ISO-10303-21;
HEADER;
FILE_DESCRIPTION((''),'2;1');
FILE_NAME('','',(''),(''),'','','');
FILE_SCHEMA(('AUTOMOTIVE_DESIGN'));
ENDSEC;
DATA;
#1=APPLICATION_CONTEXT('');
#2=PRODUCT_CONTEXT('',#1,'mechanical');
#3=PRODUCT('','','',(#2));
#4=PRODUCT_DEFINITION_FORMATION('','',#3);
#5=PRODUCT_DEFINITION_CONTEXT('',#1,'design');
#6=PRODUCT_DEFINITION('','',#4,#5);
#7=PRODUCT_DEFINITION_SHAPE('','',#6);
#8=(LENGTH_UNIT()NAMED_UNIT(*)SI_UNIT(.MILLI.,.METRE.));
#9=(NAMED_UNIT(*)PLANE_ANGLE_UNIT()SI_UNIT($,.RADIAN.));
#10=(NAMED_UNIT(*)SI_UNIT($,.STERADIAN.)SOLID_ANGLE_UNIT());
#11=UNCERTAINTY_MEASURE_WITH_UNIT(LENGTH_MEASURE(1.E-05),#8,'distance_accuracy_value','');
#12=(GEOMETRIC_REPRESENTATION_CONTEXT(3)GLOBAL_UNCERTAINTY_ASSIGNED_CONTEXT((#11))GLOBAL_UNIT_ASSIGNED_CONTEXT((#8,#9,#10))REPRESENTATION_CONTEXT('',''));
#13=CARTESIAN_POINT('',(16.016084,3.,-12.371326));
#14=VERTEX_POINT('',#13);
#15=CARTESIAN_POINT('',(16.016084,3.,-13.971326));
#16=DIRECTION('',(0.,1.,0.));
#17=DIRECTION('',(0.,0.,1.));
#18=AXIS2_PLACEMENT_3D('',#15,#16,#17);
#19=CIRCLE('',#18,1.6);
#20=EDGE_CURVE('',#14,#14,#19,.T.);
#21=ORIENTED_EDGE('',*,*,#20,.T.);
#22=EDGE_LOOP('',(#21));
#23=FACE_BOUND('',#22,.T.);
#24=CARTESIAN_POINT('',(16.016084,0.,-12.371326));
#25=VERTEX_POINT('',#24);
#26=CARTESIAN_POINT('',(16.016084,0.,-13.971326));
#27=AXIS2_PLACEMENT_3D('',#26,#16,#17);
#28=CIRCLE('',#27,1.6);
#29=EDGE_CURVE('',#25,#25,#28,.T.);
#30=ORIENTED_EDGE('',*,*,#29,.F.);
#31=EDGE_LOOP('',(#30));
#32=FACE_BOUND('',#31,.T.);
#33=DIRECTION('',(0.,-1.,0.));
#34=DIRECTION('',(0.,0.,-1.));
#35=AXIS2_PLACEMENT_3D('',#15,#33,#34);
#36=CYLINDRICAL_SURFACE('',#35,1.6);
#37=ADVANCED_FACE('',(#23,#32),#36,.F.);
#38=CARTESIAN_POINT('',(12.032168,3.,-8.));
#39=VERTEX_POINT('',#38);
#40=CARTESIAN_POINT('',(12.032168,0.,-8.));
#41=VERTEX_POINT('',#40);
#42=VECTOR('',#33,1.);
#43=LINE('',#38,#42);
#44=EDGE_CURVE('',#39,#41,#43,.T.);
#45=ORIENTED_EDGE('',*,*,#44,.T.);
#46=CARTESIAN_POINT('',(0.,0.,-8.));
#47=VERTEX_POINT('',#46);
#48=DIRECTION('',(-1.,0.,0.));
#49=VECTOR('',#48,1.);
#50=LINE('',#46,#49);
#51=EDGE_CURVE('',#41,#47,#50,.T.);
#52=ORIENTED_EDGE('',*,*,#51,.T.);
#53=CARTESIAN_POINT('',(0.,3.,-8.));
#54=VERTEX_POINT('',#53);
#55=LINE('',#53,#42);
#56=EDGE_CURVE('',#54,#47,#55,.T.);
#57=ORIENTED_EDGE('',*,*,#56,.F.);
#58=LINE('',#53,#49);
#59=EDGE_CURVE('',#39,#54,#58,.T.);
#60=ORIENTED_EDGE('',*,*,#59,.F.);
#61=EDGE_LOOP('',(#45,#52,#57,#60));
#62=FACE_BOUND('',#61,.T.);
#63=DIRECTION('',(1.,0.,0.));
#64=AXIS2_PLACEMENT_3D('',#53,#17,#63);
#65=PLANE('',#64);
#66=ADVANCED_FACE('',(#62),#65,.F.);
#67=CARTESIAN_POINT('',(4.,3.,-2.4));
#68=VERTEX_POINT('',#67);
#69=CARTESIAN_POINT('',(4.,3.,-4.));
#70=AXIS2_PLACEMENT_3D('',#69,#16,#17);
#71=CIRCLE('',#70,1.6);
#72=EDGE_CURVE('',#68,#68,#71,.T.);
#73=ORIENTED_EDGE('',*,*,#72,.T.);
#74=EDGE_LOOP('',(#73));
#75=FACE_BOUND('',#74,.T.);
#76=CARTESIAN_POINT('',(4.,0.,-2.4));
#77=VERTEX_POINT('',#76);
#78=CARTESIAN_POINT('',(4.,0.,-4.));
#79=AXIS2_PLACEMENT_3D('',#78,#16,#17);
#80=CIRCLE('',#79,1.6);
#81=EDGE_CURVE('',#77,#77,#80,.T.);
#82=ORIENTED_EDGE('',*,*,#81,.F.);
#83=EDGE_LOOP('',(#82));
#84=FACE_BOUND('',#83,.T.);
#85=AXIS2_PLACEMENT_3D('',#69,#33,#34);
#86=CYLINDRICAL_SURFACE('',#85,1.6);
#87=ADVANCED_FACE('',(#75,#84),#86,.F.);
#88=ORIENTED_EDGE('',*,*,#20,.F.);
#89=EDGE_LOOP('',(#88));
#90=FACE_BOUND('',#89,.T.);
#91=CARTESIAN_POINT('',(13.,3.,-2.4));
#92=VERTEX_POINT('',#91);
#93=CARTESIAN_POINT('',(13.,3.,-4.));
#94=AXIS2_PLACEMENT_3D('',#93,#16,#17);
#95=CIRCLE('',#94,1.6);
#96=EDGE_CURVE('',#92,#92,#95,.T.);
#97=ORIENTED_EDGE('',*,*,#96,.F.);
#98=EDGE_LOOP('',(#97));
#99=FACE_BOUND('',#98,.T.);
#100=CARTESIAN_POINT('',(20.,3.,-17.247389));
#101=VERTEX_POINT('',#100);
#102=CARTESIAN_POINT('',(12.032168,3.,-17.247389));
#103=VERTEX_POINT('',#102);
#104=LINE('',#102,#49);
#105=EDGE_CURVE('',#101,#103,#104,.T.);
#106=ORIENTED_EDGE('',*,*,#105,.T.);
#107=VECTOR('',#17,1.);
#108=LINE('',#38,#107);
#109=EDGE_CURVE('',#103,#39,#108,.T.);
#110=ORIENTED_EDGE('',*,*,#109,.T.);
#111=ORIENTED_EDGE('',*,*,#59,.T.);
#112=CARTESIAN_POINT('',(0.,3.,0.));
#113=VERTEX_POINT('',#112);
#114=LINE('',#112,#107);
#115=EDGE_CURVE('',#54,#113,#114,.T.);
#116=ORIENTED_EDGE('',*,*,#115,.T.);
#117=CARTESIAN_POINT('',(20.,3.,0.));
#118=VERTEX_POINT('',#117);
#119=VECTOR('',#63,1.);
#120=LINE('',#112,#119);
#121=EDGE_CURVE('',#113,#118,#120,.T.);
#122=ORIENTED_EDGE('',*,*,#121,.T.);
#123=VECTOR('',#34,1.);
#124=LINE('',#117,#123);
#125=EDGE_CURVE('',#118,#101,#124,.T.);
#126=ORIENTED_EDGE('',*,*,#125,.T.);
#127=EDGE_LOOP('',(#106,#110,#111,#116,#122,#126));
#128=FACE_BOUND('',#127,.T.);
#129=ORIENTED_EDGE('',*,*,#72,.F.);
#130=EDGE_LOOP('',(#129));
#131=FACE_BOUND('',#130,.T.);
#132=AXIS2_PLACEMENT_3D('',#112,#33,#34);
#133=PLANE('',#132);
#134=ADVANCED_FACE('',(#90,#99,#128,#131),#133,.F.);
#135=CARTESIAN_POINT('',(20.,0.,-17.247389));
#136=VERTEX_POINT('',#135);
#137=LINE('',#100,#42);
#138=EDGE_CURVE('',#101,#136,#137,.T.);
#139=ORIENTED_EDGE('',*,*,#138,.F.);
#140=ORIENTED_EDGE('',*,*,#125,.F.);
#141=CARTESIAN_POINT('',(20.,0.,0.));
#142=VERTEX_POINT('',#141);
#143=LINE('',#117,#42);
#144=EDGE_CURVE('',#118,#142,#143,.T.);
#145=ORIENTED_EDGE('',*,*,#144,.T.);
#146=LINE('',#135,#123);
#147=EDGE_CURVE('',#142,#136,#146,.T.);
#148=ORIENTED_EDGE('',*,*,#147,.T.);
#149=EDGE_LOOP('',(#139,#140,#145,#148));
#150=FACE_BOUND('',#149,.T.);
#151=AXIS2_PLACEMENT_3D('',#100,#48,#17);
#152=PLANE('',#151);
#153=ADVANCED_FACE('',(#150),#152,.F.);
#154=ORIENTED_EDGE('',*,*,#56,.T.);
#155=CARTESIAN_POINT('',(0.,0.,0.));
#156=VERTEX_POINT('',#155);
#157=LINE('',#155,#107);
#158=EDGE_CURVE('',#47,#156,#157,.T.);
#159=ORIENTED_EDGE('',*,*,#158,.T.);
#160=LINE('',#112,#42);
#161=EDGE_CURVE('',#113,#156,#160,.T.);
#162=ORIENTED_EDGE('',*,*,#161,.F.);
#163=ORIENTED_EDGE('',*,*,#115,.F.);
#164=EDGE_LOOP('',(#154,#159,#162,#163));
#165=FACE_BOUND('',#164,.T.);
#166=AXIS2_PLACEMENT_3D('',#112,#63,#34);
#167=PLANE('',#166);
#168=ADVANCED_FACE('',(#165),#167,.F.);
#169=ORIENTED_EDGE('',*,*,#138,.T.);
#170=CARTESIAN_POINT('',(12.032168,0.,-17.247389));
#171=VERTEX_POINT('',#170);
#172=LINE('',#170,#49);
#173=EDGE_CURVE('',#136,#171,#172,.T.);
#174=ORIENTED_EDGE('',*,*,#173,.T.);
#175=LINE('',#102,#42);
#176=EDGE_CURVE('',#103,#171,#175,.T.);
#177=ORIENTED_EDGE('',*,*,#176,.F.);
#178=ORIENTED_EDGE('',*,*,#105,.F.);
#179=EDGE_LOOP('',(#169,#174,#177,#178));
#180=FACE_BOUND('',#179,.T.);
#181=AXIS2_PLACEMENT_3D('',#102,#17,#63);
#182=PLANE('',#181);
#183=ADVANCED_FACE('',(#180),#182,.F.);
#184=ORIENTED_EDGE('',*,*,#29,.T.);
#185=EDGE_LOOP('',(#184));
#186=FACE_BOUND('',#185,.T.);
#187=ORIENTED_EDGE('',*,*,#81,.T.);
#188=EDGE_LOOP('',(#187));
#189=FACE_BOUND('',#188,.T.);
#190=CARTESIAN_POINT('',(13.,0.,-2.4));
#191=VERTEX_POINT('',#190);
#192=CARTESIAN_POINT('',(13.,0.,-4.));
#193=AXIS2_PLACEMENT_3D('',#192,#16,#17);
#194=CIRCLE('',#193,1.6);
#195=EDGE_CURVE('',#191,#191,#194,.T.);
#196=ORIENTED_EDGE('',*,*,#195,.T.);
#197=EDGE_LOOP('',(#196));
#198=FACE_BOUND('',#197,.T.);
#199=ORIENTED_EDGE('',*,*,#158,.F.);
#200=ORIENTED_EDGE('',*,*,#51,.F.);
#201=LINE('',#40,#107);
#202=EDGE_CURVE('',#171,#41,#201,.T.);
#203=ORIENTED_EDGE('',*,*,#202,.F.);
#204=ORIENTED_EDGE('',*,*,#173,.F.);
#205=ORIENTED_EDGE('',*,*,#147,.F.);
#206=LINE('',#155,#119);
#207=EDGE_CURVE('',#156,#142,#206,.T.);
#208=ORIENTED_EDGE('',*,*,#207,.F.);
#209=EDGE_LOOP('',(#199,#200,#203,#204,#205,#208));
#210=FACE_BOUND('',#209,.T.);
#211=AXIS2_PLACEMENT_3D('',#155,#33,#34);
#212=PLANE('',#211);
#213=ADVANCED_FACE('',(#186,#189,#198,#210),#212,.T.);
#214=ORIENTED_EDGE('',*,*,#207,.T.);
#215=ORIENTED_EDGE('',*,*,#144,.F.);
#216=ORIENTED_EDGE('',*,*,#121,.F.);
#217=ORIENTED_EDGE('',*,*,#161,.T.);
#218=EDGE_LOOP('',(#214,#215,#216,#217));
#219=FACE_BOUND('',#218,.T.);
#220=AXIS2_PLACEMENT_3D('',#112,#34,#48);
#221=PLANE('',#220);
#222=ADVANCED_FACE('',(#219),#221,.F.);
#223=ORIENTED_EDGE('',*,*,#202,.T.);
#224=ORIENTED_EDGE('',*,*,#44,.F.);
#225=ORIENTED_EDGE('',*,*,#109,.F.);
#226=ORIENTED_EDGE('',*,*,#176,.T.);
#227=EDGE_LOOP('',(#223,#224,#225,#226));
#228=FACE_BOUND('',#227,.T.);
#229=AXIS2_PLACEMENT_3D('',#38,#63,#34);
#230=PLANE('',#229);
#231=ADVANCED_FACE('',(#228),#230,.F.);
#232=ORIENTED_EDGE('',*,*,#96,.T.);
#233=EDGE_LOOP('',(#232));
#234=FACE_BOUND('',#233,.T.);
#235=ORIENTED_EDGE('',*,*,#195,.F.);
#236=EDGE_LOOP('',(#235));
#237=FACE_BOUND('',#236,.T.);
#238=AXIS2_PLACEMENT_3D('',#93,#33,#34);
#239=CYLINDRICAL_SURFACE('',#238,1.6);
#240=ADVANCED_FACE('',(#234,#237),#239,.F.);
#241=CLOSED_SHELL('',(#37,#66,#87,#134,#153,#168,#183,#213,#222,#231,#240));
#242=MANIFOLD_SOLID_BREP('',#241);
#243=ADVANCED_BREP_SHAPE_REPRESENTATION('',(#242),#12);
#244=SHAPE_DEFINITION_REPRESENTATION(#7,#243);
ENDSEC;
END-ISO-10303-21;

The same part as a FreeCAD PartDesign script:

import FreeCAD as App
import Part
import Sketcher
from FreeCAD import Vector
Q = App.Units.Quantity


def add_polygon(sketch, points):
    """Adds a closed chain of lines whose ends are joined by coincident constraints."""
    first, n = sketch.GeometryCount, len(points)
    for a, b in zip(points, points[1:] + points[:1]):
        sketch.addGeometry(Part.LineSegment(App.Vector(*a, 0), App.Vector(*b, 0)), False)
    for i in range(n):
        sketch.addConstraint(Sketcher.Constraint("Coincident", first + i, 2, first + (i + 1) % n, 1))

doc = App.newDocument("Part")
body = doc.addObject("PartDesign::Body", "Body")

sketch1 = body.newObject("Sketcher::SketchObject", "Sketch")
sketch1.AttachmentSupport = (doc.getObject("XZ_Plane"), [""])
sketch1.MapMode = "FlatFace"
add_polygon(sketch1, [(0, 0), (20, 0), (20, -17.247389), (12.032168, -17.247389), (12.032168, -8), (0, -8)])
sketch1.addGeometry(Part.Circle(Vector(4, -4, 0), Vector(0, 0, 1), 1.6), False)
sketch1.addGeometry(Part.Circle(Vector(13, -4, 0), Vector(0, 0, 1), 1.6), False)
sketch1.addGeometry(Part.Circle(Vector(16.016084, -13.971326, 0), Vector(0, 0, 1), 1.6), False)
sketch1.addConstraint(Sketcher.Constraint("Horizontal", 0))
sketch1.addConstraint(Sketcher.Constraint("Vertical", 1))
sketch1.addConstraint(Sketcher.Constraint("Horizontal", 2))
sketch1.addConstraint(Sketcher.Constraint("Vertical", 3))
sketch1.addConstraint(Sketcher.Constraint("Horizontal", 4))
sketch1.addConstraint(Sketcher.Constraint("Vertical", 5))
sketch1.addConstraint(Sketcher.Constraint("Coincident", 5, 2, -1, 1))
sketch1.addConstraint(Sketcher.Constraint("Equal", 6, 7))
sketch1.addConstraint(Sketcher.Constraint("Equal", 7, 8))
sketch1.addConstraint(Sketcher.Constraint("Horizontal", 6, 3, 7, 3))
sketch1.addConstraint(Sketcher.Constraint("Diameter", 6, Q("3.2 mm")))
sketch1.addConstraint(Sketcher.Constraint("DistanceX", 0, 1, 0, 2, Q("20 mm")))
sketch1.addConstraint(Sketcher.Constraint("DistanceY", 5, 1, 5, 2, Q("8 mm")))
sketch1.addConstraint(Sketcher.Constraint("DistanceX", -1, 1, 6, 3, Q("4 mm")))
sketch1.addConstraint(Sketcher.Constraint("DistanceY", 6, 3, -1, 1, Q("4 mm")))
sketch1.addConstraint(Sketcher.Constraint("DistanceX", -1, 1, 7, 3, Q("13 mm")))
sketch1.addConstraint(Sketcher.Constraint("DistanceX", 2, 2, 2, 1, Q("7.967832 mm")))
sketch1.addConstraint(Sketcher.Constraint("DistanceY", 1, 2, 1, 1, Q("17.247389 mm")))
sketch1.addConstraint(Sketcher.Constraint("DistanceX", -1, 1, 8, 3, Q("16.016084 mm")))
sketch1.addConstraint(Sketcher.Constraint("DistanceY", 8, 3, -1, 1, Q("13.971326 mm")))
pad1 = body.newObject("PartDesign::Pad", "Pad")
pad1.Profile = sketch1
pad1.Length = 3
pad1.Reversed = True

doc.recompute()
